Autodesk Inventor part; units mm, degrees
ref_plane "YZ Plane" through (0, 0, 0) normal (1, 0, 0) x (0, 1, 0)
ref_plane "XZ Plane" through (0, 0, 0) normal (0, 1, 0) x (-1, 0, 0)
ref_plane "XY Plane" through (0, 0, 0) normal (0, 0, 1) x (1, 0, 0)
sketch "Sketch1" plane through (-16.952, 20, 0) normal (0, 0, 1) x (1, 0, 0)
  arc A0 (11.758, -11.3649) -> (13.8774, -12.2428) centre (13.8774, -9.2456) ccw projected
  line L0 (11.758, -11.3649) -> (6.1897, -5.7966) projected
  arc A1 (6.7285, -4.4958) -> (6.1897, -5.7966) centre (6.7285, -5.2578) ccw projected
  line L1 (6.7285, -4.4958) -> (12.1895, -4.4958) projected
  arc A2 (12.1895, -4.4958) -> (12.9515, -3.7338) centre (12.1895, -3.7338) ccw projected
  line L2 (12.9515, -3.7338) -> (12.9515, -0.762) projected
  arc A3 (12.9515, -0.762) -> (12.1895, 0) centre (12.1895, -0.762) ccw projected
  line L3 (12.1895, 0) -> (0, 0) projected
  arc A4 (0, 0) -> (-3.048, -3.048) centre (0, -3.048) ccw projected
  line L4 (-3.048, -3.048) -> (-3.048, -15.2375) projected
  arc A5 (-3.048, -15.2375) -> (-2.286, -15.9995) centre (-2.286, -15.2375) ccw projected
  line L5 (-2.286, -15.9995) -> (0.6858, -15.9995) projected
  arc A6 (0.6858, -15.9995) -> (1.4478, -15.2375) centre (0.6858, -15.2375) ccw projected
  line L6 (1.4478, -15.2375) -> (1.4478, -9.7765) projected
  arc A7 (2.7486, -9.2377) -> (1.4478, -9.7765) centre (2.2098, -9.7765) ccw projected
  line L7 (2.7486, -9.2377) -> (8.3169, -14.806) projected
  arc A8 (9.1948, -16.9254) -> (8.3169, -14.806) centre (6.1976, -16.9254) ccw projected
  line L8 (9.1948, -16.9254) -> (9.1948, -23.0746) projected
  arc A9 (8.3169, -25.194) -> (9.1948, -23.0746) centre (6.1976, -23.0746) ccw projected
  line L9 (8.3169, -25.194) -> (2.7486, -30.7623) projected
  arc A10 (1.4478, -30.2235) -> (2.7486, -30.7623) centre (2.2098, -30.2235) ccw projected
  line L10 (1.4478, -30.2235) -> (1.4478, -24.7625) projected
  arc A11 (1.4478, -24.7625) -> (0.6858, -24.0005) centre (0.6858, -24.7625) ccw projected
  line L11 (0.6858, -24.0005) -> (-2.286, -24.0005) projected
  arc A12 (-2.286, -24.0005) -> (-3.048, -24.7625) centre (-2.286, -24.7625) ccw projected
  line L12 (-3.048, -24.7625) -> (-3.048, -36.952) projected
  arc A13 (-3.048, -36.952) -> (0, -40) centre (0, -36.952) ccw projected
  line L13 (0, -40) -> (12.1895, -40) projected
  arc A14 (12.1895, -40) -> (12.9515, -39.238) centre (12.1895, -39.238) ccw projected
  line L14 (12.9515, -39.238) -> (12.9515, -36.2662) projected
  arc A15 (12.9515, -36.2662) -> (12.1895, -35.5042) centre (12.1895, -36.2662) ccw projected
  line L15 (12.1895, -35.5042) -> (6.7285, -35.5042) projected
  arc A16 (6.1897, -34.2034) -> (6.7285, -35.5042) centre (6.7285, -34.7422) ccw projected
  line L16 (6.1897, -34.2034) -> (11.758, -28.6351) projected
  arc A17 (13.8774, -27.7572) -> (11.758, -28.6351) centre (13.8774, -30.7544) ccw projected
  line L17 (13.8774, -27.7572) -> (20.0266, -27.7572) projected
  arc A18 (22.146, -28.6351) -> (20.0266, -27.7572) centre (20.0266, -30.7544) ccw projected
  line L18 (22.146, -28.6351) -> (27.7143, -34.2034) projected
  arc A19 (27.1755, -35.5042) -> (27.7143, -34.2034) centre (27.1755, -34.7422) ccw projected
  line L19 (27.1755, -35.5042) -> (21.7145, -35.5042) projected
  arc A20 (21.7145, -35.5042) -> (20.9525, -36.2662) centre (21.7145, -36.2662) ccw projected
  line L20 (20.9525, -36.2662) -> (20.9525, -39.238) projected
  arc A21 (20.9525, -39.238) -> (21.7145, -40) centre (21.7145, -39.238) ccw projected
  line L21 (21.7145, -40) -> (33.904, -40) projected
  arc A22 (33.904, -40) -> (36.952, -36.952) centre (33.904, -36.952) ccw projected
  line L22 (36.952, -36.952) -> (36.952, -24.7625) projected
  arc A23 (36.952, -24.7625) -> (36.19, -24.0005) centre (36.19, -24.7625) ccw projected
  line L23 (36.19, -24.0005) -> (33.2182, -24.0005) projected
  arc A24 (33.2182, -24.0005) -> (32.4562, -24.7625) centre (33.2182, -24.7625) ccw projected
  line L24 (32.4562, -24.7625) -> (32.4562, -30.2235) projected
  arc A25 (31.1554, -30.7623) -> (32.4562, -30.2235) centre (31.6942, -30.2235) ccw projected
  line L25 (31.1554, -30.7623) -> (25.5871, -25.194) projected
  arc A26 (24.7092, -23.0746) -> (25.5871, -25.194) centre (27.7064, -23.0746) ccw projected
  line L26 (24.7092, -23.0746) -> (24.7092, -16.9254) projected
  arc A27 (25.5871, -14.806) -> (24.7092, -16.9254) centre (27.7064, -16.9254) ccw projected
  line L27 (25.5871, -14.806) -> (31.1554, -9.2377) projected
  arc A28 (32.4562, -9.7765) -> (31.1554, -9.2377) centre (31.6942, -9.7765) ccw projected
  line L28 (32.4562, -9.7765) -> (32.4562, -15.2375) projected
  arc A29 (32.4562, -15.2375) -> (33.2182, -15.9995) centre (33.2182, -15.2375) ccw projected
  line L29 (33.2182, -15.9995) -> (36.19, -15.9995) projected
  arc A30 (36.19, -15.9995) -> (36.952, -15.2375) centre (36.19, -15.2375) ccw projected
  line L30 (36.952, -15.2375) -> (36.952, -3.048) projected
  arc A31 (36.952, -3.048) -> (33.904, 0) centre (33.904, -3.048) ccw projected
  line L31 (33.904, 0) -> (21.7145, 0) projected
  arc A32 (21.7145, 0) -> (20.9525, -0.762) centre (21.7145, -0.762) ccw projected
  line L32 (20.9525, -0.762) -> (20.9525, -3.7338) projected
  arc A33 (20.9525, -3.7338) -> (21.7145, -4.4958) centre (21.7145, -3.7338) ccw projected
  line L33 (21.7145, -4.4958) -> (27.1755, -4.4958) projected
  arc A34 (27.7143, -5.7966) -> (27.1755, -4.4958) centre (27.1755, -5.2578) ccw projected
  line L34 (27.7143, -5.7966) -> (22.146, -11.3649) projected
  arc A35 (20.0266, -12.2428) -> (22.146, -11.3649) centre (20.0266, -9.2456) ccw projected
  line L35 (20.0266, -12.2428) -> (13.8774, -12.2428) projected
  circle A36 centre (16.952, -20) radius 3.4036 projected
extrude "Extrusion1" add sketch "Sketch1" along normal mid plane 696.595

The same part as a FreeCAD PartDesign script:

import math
import FreeCAD as App
import Part
import Sketcher
Q = App.Units.Quantity

doc = App.newDocument("Part")
params = doc.addObject("Spreadsheet::Sheet", "Params")
for row, (alias, value) in enumerate([
    ("sketch1_radius", "0.03 in"),
    ("sketch1_radius2", "0.12 in"),
    ("sketch1_diameter", "0.268 in"),
    ("sketch1_radius3", "0.118 in"),
    ("sketch1_width", "0.215 in"),
    ("pad1_length", "27.425 in"),
], start=1):
    params.set(f"A{row}", alias)
    params.set(f"B{row}", "=" + value)
    params.setAlias(f"B{row}", alias)

body = doc.addObject("PartDesign::Body", "Body")

sketch1 = doc.addObject("Sketcher::SketchObject", "Sketch")
body.addObject(sketch1)
sketch1.AttachmentSupport = (doc.XY_Plane, [""])
sketch1.MapMode = "FlatFace"
sketch1.addGeometry([
    Part.ArcOfCircle(Part.Circle(App.Vector(-3.0746, 10.7544, 0), App.Vector(0, 0, 1), 2.997214), math.radians(-135.001352), math.radians(-90)),
    Part.LineSegment(App.Vector(-5.194, 8.6351, 0), App.Vector(-10.7623, 14.2034, 0)),
    Part.ArcOfCircle(Part.Circle(App.Vector(-10.2235, 14.7422, 0), App.Vector(0, 0, 1), 0.762), math.radians(90), math.radians(225)),
    Part.LineSegment(App.Vector(-10.2235, 15.5042, 0), App.Vector(-4.7625, 15.5042, 0)),
    Part.ArcOfCircle(Part.Circle(App.Vector(-4.7625, 16.2662, 0), App.Vector(0, 0, 1), 0.762), math.radians(-90), math.radians(0)),
    Part.LineSegment(App.Vector(-4.0005, 16.2662, 0), App.Vector(-4.0005, 19.238, 0)),
    Part.ArcOfCircle(Part.Circle(App.Vector(-4.7625, 19.238, 0), App.Vector(0, 0, 1), 0.762), math.radians(0), math.radians(90)),
    Part.LineSegment(App.Vector(-4.7625, 20, 0), App.Vector(-16.952, 20, 0)),
    Part.ArcOfCircle(Part.Circle(App.Vector(-16.952, 16.952, 0), App.Vector(0, 0, 1), 3.048), math.radians(90), math.radians(180)),
    Part.LineSegment(App.Vector(-20, 16.952, 0), App.Vector(-20, 4.7625, 0)),
    Part.ArcOfCircle(Part.Circle(App.Vector(-19.238, 4.7625, 0), App.Vector(0, 0, 1), 0.762), math.radians(180), math.radians(270)),
    Part.LineSegment(App.Vector(-19.238, 4.0005, 0), App.Vector(-16.2662, 4.0005, 0)),
    Part.ArcOfCircle(Part.Circle(App.Vector(-16.2662, 4.7625, 0), App.Vector(0, 0, 1), 0.762), math.radians(-90), math.radians(0)),
    Part.LineSegment(App.Vector(-15.5042, 4.7625, 0), App.Vector(-15.5042, 10.2235, 0)),
    Part.ArcOfCircle(Part.Circle(App.Vector(-14.7422, 10.2235, 0), App.Vector(0, 0, 1), 0.761978), math.radians(45), math.radians(180)),
    Part.LineSegment(App.Vector(-14.2034, 10.7623, 0), App.Vector(-8.6351, 5.194, 0)),
    Part.ArcOfCircle(Part.Circle(App.Vector(-10.7544, 3.0746, 0), App.Vector(0, 0, 1), 2.9972), math.radians(0), math.radians(45.001352)),
    Part.LineSegment(App.Vector(-7.7572, 3.0746, 0), App.Vector(-7.7572, -3.0746, 0)),
    Part.ArcOfCircle(Part.Circle(App.Vector(-10.7544, -3.0746, 0), App.Vector(0, 0, 1), 2.997214), math.radians(-45.001352), math.radians(0)),
    Part.LineSegment(App.Vector(-8.6351, -5.194, 0), App.Vector(-14.2034, -10.7623, 0)),
    Part.ArcOfCircle(Part.Circle(App.Vector(-14.7422, -10.2235, 0), App.Vector(0, 0, 1), 0.762), math.radians(180), math.radians(315)),
    Part.LineSegment(App.Vector(-15.5042, -10.2235, 0), App.Vector(-15.5042, -4.7625, 0)),
    Part.ArcOfCircle(Part.Circle(App.Vector(-16.2662, -4.7625, 0), App.Vector(0, 0, 1), 0.762), math.radians(0), math.radians(90)),
    Part.LineSegment(App.Vector(-16.2662, -4.0005, 0), App.Vector(-19.238, -4.0005, 0)),
    Part.ArcOfCircle(Part.Circle(App.Vector(-19.238, -4.7625, 0), App.Vector(0, 0, 1), 0.762), math.radians(90), math.radians(180)),
    Part.LineSegment(App.Vector(-20, -4.7625, 0), App.Vector(-20, -16.952, 0)),
    Part.ArcOfCircle(Part.Circle(App.Vector(-16.952, -16.952, 0), App.Vector(0, 0, 1), 3.048), math.radians(180), math.radians(270)),
    Part.LineSegment(App.Vector(-16.952, -20, 0), App.Vector(-4.7625, -20, 0)),
    Part.ArcOfCircle(Part.Circle(App.Vector(-4.7625, -19.238, 0), App.Vector(0, 0, 1), 0.762), math.radians(-90), math.radians(0)),
    Part.LineSegment(App.Vector(-4.0005, -19.238, 0), App.Vector(-4.0005, -16.2662, 0)),
    Part.ArcOfCircle(Part.Circle(App.Vector(-4.7625, -16.2662, 0), App.Vector(0, 0, 1), 0.762), math.radians(0), math.radians(90)),
    Part.LineSegment(App.Vector(-4.7625, -15.5042, 0), App.Vector(-10.2235, -15.5042, 0)),
    Part.ArcOfCircle(Part.Circle(App.Vector(-10.2235, -14.7422, 0), App.Vector(0, 0, 1), 0.761978), math.radians(135), math.radians(270)),
    Part.LineSegment(App.Vector(-10.7623, -14.2034, 0), App.Vector(-5.194, -8.6351, 0)),
    Part.ArcOfCircle(Part.Circle(App.Vector(-3.0746, -10.7544, 0), App.Vector(0, 0, 1), 2.9972), math.radians(90), math.radians(135.001352)),
    Part.LineSegment(App.Vector(-3.0746, -7.7572, 0), App.Vector(3.0746, -7.7572, 0)),
    Part.ArcOfCircle(Part.Circle(App.Vector(3.0746, -10.7544, 0), App.Vector(0, 0, 1), 2.997214), math.radians(44.998648), math.radians(90)),
    Part.LineSegment(App.Vector(5.194, -8.6351, 0), App.Vector(10.7623, -14.2034, 0)),
    Part.ArcOfCircle(Part.Circle(App.Vector(10.2235, -14.7422, 0), App.Vector(0, 0, 1), 0.762), math.radians(-90), math.radians(45)),
    Part.LineSegment(App.Vector(10.2235, -15.5042, 0), App.Vector(4.7625, -15.5042, 0)),
    Part.ArcOfCircle(Part.Circle(App.Vector(4.7625, -16.2662, 0), App.Vector(0, 0, 1), 0.762), math.radians(90), math.radians(180)),
    Part.LineSegment(App.Vector(4.0005, -16.2662, 0), App.Vector(4.0005, -19.238, 0)),
    Part.ArcOfCircle(Part.Circle(App.Vector(4.7625, -19.238, 0), App.Vector(0, 0, 1), 0.762), math.radians(180), math.radians(270)),
    Part.LineSegment(App.Vector(4.7625, -20, 0), App.Vector(16.952, -20, 0)),
    Part.ArcOfCircle(Part.Circle(App.Vector(16.952, -16.952, 0), App.Vector(0, 0, 1), 3.048), math.radians(-90), math.radians(0)),
    Part.LineSegment(App.Vector(20, -16.952, 0), App.Vector(20, -4.7625, 0)),
    Part.ArcOfCircle(Part.Circle(App.Vector(19.238, -4.7625, 0), App.Vector(0, 0, 1), 0.762), math.radians(0), math.radians(90)),
    Part.LineSegment(App.Vector(19.238, -4.0005, 0), App.Vector(16.2662, -4.0005, 0)),
    Part.ArcOfCircle(Part.Circle(App.Vector(16.2662, -4.7625, 0), App.Vector(0, 0, 1), 0.762), math.radians(90), math.radians(180)),
    Part.LineSegment(App.Vector(15.5042, -4.7625, 0), App.Vector(15.5042, -10.2235, 0)),
    Part.ArcOfCircle(Part.Circle(App.Vector(14.7422, -10.2235, 0), App.Vector(0, 0, 1), 0.761978), math.radians(-135), math.radians(0)),
    Part.LineSegment(App.Vector(14.2034, -10.7623, 0), App.Vector(8.6351, -5.194, 0)),
    Part.ArcOfCircle(Part.Circle(App.Vector(10.7544, -3.0746, 0), App.Vector(0, 0, 1), 2.9972), math.radians(180), math.radians(225.001352)),
    Part.LineSegment(App.Vector(7.7572, -3.0746, 0), App.Vector(7.7572, 3.0746, 0)),
    Part.ArcOfCircle(Part.Circle(App.Vector(10.7544, 3.0746, 0), App.Vector(0, 0, 1), 2.997214), math.radians(134.998648), math.radians(180)),
    Part.LineSegment(App.Vector(8.6351, 5.194, 0), App.Vector(14.2034, 10.7623, 0)),
    Part.ArcOfCircle(Part.Circle(App.Vector(14.7422, 10.2235, 0), App.Vector(0, 0, 1), 0.762), math.radians(0), math.radians(135)),
    Part.LineSegment(App.Vector(15.5042, 10.2235, 0), App.Vector(15.5042, 4.7625, 0)),
    Part.ArcOfCircle(Part.Circle(App.Vector(16.2662, 4.7625, 0), App.Vector(0, 0, 1), 0.762), math.radians(180), math.radians(270)),
    Part.LineSegment(App.Vector(16.2662, 4.0005, 0), App.Vector(19.238, 4.0005, 0)),
    Part.ArcOfCircle(Part.Circle(App.Vector(19.238, 4.7625, 0), App.Vector(0, 0, 1), 0.762), math.radians(-90), math.radians(0)),
    Part.LineSegment(App.Vector(20, 4.7625, 0), App.Vector(20, 16.952, 0)),
    Part.ArcOfCircle(Part.Circle(App.Vector(16.952, 16.952, 0), App.Vector(0, 0, 1), 3.048), math.radians(0), math.radians(90)),
    Part.LineSegment(App.Vector(16.952, 20, 0), App.Vector(4.7625, 20, 0)),
    Part.ArcOfCircle(Part.Circle(App.Vector(4.7625, 19.238, 0), App.Vector(0, 0, 1), 0.762), math.radians(90), math.radians(180)),
    Part.LineSegment(App.Vector(4.0005, 19.238, 0), App.Vector(4.0005, 16.2662, 0)),
    Part.ArcOfCircle(Part.Circle(App.Vector(4.7625, 16.2662, 0), App.Vector(0, 0, 1), 0.762), math.radians(180), math.radians(270)),
    Part.LineSegment(App.Vector(4.7625, 15.5042, 0), App.Vector(10.2235, 15.5042, 0)),
    Part.ArcOfCircle(Part.Circle(App.Vector(10.2235, 14.7422, 0), App.Vector(0, 0, 1), 0.761978), math.radians(-45), math.radians(90)),
    Part.LineSegment(App.Vector(10.7623, 14.2034, 0), App.Vector(5.194, 8.6351, 0)),
    Part.ArcOfCircle(Part.Circle(App.Vector(3.0746, 10.7544, 0), App.Vector(0, 0, 1), 2.9972), math.radians(-90), math.radians(-44.998648)),
    Part.LineSegment(App.Vector(3.0746, 7.7572, 0), App.Vector(-3.0746, 7.7572, 0)),
    Part.Circle(App.Vector(0, 0, 0), App.Vector(0, 0, 1), 3.4036),
], False)
sketch1.addConstraint([
    Sketcher.Constraint("Tangent", 0, 1, 1, 1),
    Sketcher.Constraint("Tangent", 1, 2, 2, 2),
    Sketcher.Constraint("Tangent", 2, 1, 3, 1),
    Sketcher.Constraint("Tangent", 3, 2, 4, 1),
    Sketcher.Constraint("Tangent", 4, 2, 5, 1),
    Sketcher.Constraint("Tangent", 5, 2, 6, 1),
    Sketcher.Constraint("Tangent", 6, 2, 7, 1),
    Sketcher.Constraint("Tangent", 7, 2, 8, 1),
    Sketcher.Constraint("Tangent", 8, 2, 9, 1),
    Sketcher.Constraint("Tangent", 9, 2, 10, 1),
    Sketcher.Constraint("Tangent", 10, 2, 11, 1),
    Sketcher.Constraint("Tangent", 11, 2, 12, 1),
    Sketcher.Constraint("Tangent", 12, 2, 13, 1),
    Sketcher.Constraint("Tangent", 13, 2, 14, 2),
    Sketcher.Constraint("Tangent", 14, 1, 15, 1),
    Sketcher.Constraint("Tangent", 15, 2, 16, 2),
    Sketcher.Constraint("Tangent", 16, 1, 17, 1),
    Sketcher.Constraint("Tangent", 17, 2, 18, 2),
    Sketcher.Constraint("Tangent", 18, 1, 19, 1),
    Sketcher.Constraint("Tangent", 19, 2, 20, 2),
    Sketcher.Constraint("Tangent", 20, 1, 21, 1),
    Sketcher.Constraint("Tangent", 21, 2, 22, 1),
    Sketcher.Constraint("Tangent", 22, 2, 23, 1),
    Sketcher.Constraint("Tangent", 23, 2, 24, 1),
    Sketcher.Constraint("Tangent", 24, 2, 25, 1),
    Sketcher.Constraint("Tangent", 25, 2, 26, 1),
    Sketcher.Constraint("Tangent", 26, 2, 27, 1),
    Sketcher.Constraint("Tangent", 27, 2, 28, 1),
    Sketcher.Constraint("Tangent", 28, 2, 29, 1),
    Sketcher.Constraint("Tangent", 29, 2, 30, 1),
    Sketcher.Constraint("Tangent", 30, 2, 31, 1),
    Sketcher.Constraint("Tangent", 31, 2, 32, 2),
    Sketcher.Constraint("Tangent", 32, 1, 33, 1),
    Sketcher.Constraint("Tangent", 33, 2, 34, 2),
    Sketcher.Constraint("Tangent", 34, 1, 35, 1),
    Sketcher.Constraint("Tangent", 35, 2, 36, 2),
    Sketcher.Constraint("Tangent", 36, 1, 37, 1),
    Sketcher.Constraint("Tangent", 37, 2, 38, 2),
    Sketcher.Constraint("Tangent", 38, 1, 39, 1),
    Sketcher.Constraint("Tangent", 39, 2, 40, 1),
    Sketcher.Constraint("Tangent", 40, 2, 41, 1),
    Sketcher.Constraint("Tangent", 41, 2, 42, 1),
    Sketcher.Constraint("Tangent", 42, 2, 43, 1),
    Sketcher.Constraint("Tangent", 43, 2, 44, 1),
    Sketcher.Constraint("Tangent", 44, 2, 45, 1),
    Sketcher.Constraint("Tangent", 45, 2, 46, 1),
    Sketcher.Constraint("Tangent", 46, 2, 47, 1),
    Sketcher.Constraint("Tangent", 47, 2, 48, 1),
    Sketcher.Constraint("Tangent", 48, 2, 49, 1),
    Sketcher.Constraint("Tangent", 49, 2, 50, 2),
    Sketcher.Constraint("Tangent", 50, 1, 51, 1),
    Sketcher.Constraint("Tangent", 51, 2, 52, 2),
    Sketcher.Constraint("Tangent", 52, 1, 53, 1),
    Sketcher.Constraint("Tangent", 53, 2, 54, 2),
    Sketcher.Constraint("Tangent", 54, 1, 55, 1),
    Sketcher.Constraint("Tangent", 55, 2, 56, 2),
    Sketcher.Constraint("Tangent", 56, 1, 57, 1),
    Sketcher.Constraint("Tangent", 57, 2, 58, 1),
    Sketcher.Constraint("Tangent", 58, 2, 59, 1),
    Sketcher.Constraint("Tangent", 59, 2, 60, 1),
    Sketcher.Constraint("Tangent", 60, 2, 61, 1),
    Sketcher.Constraint("Tangent", 61, 2, 62, 1),
    Sketcher.Constraint("Tangent", 62, 2, 63, 1),
    Sketcher.Constraint("Tangent", 63, 2, 64, 1),
    Sketcher.Constraint("Tangent", 64, 2, 65, 1),
    Sketcher.Constraint("Tangent", 65, 2, 66, 1),
    Sketcher.Constraint("Tangent", 66, 2, 67, 1),
    Sketcher.Constraint("Tangent", 67, 2, 68, 2),
    Sketcher.Constraint("Tangent", 68, 1, 69, 1),
    Sketcher.Constraint("Tangent", 69, 2, 70, 2),
    Sketcher.Constraint("Tangent", 70, 1, 71, 1),
    Sketcher.Constraint("Tangent", 71, 2, 0, 2),
    Sketcher.Constraint("Horizontal", 3),
    Sketcher.Constraint("Vertical", 5),
    Sketcher.Constraint("Horizontal", 7),
    Sketcher.Constraint("Vertical", 9),
    Sketcher.Constraint("Horizontal", 11),
    Sketcher.Constraint("Vertical", 13),
    Sketcher.Constraint("Vertical", 17),
    Sketcher.Constraint("Vertical", 21),
    Sketcher.Constraint("Horizontal", 23),
    Sketcher.Constraint("Vertical", 25),
    Sketcher.Constraint("Horizontal", 27),
    Sketcher.Constraint("Vertical", 29),
    Sketcher.Constraint("Horizontal", 31),
    Sketcher.Constraint("Horizontal", 35),
    Sketcher.Constraint("Horizontal", 39),
    Sketcher.Constraint("Vertical", 41),
    Sketcher.Constraint("Horizontal", 43),
    Sketcher.Constraint("Vertical", 45),
    Sketcher.Constraint("Horizontal", 47),
    Sketcher.Constraint("Vertical", 49),
    Sketcher.Constraint("Vertical", 53),
    Sketcher.Constraint("Vertical", 57),
    Sketcher.Constraint("Horizontal", 59),
    Sketcher.Constraint("Vertical", 61),
    Sketcher.Constraint("Horizontal", 63),
    Sketcher.Constraint("Vertical", 65),
    Sketcher.Constraint("Horizontal", 67),
    Sketcher.Constraint("Horizontal", 71),
    Sketcher.Constraint("Coincident", 72, 3, -1, 1),
    Sketcher.Constraint("Equal", 2, 4),
    Sketcher.Constraint("Equal", 4, 6),
    Sketcher.Constraint("Equal", 6, 10),
    Sketcher.Constraint("Equal", 10, 12),
    Sketcher.Constraint("Equal", 12, 14),
    Sketcher.Constraint("Equal", 0, 16),
    Sketcher.Constraint("Equal", 16, 18),
    Sketcher.Constraint("Equal", 14, 20),
    Sketcher.Constraint("Equal", 20, 22),
    Sketcher.Constraint("Equal", 22, 24),
    Sketcher.Constraint("Equal", 8, 26),
    Sketcher.Constraint("Equal", 24, 28),
    Sketcher.Constraint("Equal", 28, 30),
    Sketcher.Constraint("Equal", 30, 32),
    Sketcher.Constraint("Equal", 18, 34),
    Sketcher.Constraint("Equal", 34, 36),
    Sketcher.Constraint("Equal", 32, 38),
    Sketcher.Constraint("Equal", 38, 40),
    Sketcher.Constraint("Equal", 40, 42),
    Sketcher.Constraint("Equal", 26, 44),
    Sketcher.Constraint("Equal", 42, 46),
    Sketcher.Constraint("Equal", 46, 48),
    Sketcher.Constraint("Equal", 48, 50),
    Sketcher.Constraint("Equal", 36, 52),
    Sketcher.Constraint("Equal", 52, 54),
    Sketcher.Constraint("Equal", 50, 56),
    Sketcher.Constraint("Equal", 56, 58),
    Sketcher.Constraint("Equal", 58, 60),
    Sketcher.Constraint("Equal", 44, 62),
    Sketcher.Constraint("Equal", 60, 64),
    Sketcher.Constraint("Equal", 64, 66),
    Sketcher.Constraint("Equal", 66, 68),
    Sketcher.Constraint("Equal", 54, 70),
    Sketcher.Constraint("Symmetric", 0, 3, 36, 3, -1, 1),
    Sketcher.Constraint("Symmetric", 2, 3, 38, 3, -1, 1),
    Sketcher.Constraint("Symmetric", 6, 3, 42, 3, -1, 1),
    Sketcher.Constraint("Symmetric", 10, 3, 46, 3, -1, 1),
    Sketcher.Constraint("Symmetric", 14, 3, 50, 3, -1, 1),
    Sketcher.Constraint("Symmetric", 16, 3, 52, 3, -1, 1),
    Sketcher.Constraint("Symmetric", 20, 3, 56, 3, -1, 1),
    Sketcher.Constraint("Symmetric", 24, 3, 60, 3, -1, 1),
    Sketcher.Constraint("Symmetric", 28, 3, 64, 3, -1, 1),
    Sketcher.Constraint("Symmetric", 32, 3, 68, 3, -1, 1),
    Sketcher.Constraint("Symmetric", 32, 3, 38, 3, -2),
    Sketcher.Constraint("Symmetric", 28, 3, 42, 3, -2),
    Sketcher.Constraint("Symmetric", 24, 3, 46, 3, -2),
    Sketcher.Constraint("Symmetric", 20, 3, 50, 3, -2),
    Sketcher.Constraint("Parallel", 1, 15),
    Sketcher.Constraint("Perpendicular", 15, 19),
    Sketcher.Constraint("Parallel", 19, 33),
    Sketcher.Constraint("Perpendicular", 51, 55),
    Sketcher.Constraint("Parallel", 55, 69),
    Sketcher.Constraint("Horizontal", 18, 3, 52, 3),
    Sketcher.Constraint("Equal", 59, 5),
    Sketcher.Constraint("Equal", 63, 9),
    Sketcher.Constraint("Equal", 67, 13),
    Sketcher.Constraint("Equal", 71, 17),
    Sketcher.Constraint("Equal", 1, 15),
    Sketcher.Constraint("Radius", 2, Q("0.03 in")),
    Sketcher.Constraint("Radius", 8, Q("0.12 in")),
    Sketcher.Constraint("Diameter", 72, Q("0.268 in")),
    Sketcher.Constraint("Radius", 0, Q("0.118 in")),
    Sketcher.Constraint("DistanceX", 3, 1, 3, 2, Q("0.215 in")),
    Sketcher.Constraint("DistanceX", 11, 1, 11, 2, Q("0.117 in")),
    Sketcher.Constraint("DistanceX", 7, 2, 7, 1, Q("0.4799 in")),
    Sketcher.Constraint("DistanceX", 35, 1, 35, 2, Q("0.2421 in")),
    Sketcher.Constraint("DistanceX", 4, 3, -1, 1, Q("0.1875 in")),
])
sketch1.setExpression("Constraints[159]", "Params.sketch1_radius")
sketch1.setExpression("Constraints[160]", "Params.sketch1_radius2")
sketch1.setExpression("Constraints[161]", "Params.sketch1_diameter")
sketch1.setExpression("Constraints[162]", "Params.sketch1_radius3")
sketch1.setExpression("Constraints[163]", "Params.sketch1_width")
pad1 = doc.addObject("PartDesign::Pad", "Pad")
body.addObject(pad1)
pad1.Profile = sketch1
pad1.setExpression("Length", "Params.pad1_length")
pad1.Midplane = True

doc.recompute()
